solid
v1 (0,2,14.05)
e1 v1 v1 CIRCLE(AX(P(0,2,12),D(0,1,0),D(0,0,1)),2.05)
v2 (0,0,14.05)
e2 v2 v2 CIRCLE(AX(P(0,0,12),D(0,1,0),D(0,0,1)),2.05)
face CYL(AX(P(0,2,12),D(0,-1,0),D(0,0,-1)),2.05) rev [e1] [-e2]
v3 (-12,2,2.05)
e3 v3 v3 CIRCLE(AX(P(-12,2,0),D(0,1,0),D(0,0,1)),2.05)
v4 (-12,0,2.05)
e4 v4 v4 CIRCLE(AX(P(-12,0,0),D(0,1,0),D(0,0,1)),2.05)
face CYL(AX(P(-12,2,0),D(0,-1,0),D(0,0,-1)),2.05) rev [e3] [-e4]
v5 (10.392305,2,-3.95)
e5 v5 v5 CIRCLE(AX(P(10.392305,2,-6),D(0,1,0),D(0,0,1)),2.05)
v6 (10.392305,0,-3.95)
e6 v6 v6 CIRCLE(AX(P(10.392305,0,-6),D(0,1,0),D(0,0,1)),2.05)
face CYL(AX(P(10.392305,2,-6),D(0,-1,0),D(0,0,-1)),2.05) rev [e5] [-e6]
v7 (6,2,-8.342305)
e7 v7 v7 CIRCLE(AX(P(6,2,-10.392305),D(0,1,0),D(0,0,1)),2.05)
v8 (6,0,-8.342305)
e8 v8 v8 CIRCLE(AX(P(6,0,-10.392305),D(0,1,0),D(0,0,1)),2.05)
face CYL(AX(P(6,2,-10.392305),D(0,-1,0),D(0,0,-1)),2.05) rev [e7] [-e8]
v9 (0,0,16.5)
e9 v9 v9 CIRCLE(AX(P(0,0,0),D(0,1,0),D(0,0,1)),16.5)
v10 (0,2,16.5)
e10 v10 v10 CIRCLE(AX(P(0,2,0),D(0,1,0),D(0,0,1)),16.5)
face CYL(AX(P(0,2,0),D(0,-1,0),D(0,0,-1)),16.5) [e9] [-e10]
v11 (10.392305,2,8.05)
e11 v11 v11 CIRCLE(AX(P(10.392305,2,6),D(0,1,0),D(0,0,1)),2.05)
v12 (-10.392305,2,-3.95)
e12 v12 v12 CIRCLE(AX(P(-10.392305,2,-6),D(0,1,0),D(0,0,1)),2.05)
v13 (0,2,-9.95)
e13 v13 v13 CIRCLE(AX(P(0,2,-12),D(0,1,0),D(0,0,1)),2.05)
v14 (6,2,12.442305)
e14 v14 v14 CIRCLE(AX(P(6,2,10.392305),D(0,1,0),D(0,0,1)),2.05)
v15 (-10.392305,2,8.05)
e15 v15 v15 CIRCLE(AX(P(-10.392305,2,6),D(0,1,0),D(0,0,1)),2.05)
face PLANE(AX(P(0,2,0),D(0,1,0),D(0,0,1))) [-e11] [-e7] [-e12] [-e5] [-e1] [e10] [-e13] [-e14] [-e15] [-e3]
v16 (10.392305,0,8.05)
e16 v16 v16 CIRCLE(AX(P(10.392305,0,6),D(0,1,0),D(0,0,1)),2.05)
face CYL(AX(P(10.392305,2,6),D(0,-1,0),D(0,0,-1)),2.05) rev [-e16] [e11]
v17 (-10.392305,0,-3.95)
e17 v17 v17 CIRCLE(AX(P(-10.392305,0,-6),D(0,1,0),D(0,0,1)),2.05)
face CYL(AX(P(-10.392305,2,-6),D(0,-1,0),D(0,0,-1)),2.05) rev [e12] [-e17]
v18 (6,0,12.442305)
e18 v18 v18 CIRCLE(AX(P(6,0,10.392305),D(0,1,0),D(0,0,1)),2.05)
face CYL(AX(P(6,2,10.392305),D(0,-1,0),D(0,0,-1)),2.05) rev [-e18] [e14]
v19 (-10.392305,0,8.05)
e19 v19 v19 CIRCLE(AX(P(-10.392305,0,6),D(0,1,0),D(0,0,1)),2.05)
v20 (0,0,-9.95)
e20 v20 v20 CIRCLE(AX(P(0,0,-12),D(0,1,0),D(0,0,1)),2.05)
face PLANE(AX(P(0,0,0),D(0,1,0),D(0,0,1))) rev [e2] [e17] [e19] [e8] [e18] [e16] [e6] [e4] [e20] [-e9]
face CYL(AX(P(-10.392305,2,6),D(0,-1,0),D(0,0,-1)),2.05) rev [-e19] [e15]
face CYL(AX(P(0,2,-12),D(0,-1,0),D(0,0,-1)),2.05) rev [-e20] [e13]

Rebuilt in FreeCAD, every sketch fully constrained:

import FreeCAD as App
import Part
import Sketcher

V = App.Vector

doc = App.newDocument("Part")
body = doc.addObject("PartDesign::Body", "Body")

sketch1 = body.newObject("Sketcher::SketchObject", "Sketch")
sketch1.AttachmentSupport = (doc.getObject("XZ_Plane"), [""])
sketch1.MapMode = "FlatFace"
sketch1.addGeometry(Part.Circle(V(0, 0, 0), V(0, 0, 1), 16.5), False)
sketch1.addGeometry(Part.Circle(V(-10.4, -6, 0), V(0, 0, 1), 2), False)
sketch1.addGeometry(Part.Circle(V(-12, 0, 0), V(0, 0, 1), 2), False)
sketch1.addGeometry(Part.Circle(V(-10.4, 6, 0), V(0, 0, 1), 2), False)
sketch1.addGeometry(Part.Circle(V(0, -12, 0), V(0, 0, 1), 2), False)
sketch1.addGeometry(Part.Circle(V(6, -10.4, 0), V(0, 0, 1), 2), False)
sketch1.addGeometry(Part.Circle(V(10.4, -6, 0), V(0, 0, 1), 2), False)
sketch1.addGeometry(Part.Circle(V(0, 12, 0), V(0, 0, 1), 2), False)
sketch1.addGeometry(Part.Circle(V(10.4, 6, 0), V(0, 0, 1), 2), False)
sketch1.addGeometry(Part.Circle(V(6, 10.4, 0), V(0, 0, 1), 2), False)
sketch1.addConstraint(Sketcher.Constraint("Coincident", 0, 3, -1, 1))
sketch1.addConstraint(Sketcher.Constraint("Equal", 1, 2))
sketch1.addConstraint(Sketcher.Constraint("Equal", 2, 3))
sketch1.addConstraint(Sketcher.Constraint("Equal", 3, 4))
sketch1.addConstraint(Sketcher.Constraint("Equal", 4, 5))
sketch1.addConstraint(Sketcher.Constraint("Equal", 5, 6))
sketch1.addConstraint(Sketcher.Constraint("Equal", 6, 7))
sketch1.addConstraint(Sketcher.Constraint("Equal", 7, 8))
sketch1.addConstraint(Sketcher.Constraint("Equal", 8, 9))
sketch1.addConstraint(Sketcher.Constraint("Symmetric", 3, 3, 6, 3, -1, 1))
sketch1.addConstraint(Sketcher.Constraint("Symmetric", 4, 3, 7, 3, -1, 1))
sketch1.addConstraint(Sketcher.Constraint("Symmetric", 1, 3, 8, 3, -1, 1))
sketch1.addConstraint(Sketcher.Constraint("Symmetric", 1, 3, 6, 3, -2))
sketch1.addConstraint(Sketcher.Constraint("Symmetric", 5, 3, 9, 3, -1))
sketch1.addConstraint(Sketcher.Constraint("PointOnObject", 2, 3, -1))
sketch1.addConstraint(Sketcher.Constraint("PointOnObject", 4, 3, -2))
sketch1.addConstraint(Sketcher.Constraint("Diameter", 0, 33.0))
sketch1.addConstraint(Sketcher.Constraint("Diameter", 1, 4.1))
sketch1.addConstraint(Sketcher.Constraint("DistanceY", 1, 3, -1, 1, 6.0))
sketch1.addConstraint(Sketcher.Constraint("DistanceX", 2, 3, -1, 1, 12.0))
sketch1.addConstraint(Sketcher.Constraint("DistanceY", 4, 3, -1, 1, 12.0))
sketch1.addConstraint(Sketcher.Constraint("DistanceX", -1, 1, 5, 3, 6.0))
sketch1.addConstraint(Sketcher.Constraint("DistanceX", 1, 3, 6, 3, 20.78461))
sketch1.addConstraint(Sketcher.Constraint("DistanceY", 5, 3, -1, 1, 10.392305))
pad1 = body.newObject("PartDesign::Pad", "Pad")
pad1.Profile = sketch1
pad1.Length = 2
pad1.Reversed = True

doc.recompute()
